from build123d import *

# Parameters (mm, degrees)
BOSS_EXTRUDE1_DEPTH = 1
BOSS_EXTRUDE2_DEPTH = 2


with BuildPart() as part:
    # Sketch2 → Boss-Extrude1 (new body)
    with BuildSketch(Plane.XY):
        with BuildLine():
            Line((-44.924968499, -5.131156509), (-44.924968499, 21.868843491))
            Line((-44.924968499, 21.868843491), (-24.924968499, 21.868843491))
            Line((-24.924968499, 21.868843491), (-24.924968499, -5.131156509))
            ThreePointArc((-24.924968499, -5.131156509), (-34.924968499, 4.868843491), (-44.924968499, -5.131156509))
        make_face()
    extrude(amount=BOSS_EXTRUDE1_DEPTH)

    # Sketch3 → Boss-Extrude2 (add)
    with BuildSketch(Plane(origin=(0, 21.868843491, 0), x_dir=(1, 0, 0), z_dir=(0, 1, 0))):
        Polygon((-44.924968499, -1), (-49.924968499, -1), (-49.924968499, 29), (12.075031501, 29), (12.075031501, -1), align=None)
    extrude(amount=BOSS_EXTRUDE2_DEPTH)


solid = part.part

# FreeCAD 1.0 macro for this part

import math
import FreeCAD as App
import Part
import Sketcher

V = App.Vector
Q = App.Units.Quantity


def add_polygon(sketch, points):
    """Adds a closed chain of lines whose ends are joined by coincident constraints."""
    first, n = sketch.GeometryCount, len(points)
    for a, b in zip(points, points[1:] + points[:1]):
        sketch.addGeometry(Part.LineSegment(App.Vector(*a, 0), App.Vector(*b, 0)), False)
    for i in range(n):
        sketch.addConstraint(Sketcher.Constraint("Coincident", first + i, 2, first + (i + 1) % n, 1))

doc = App.newDocument("Part")
body = doc.addObject("PartDesign::Body", "Body")

sketch1 = doc.addObject("Sketcher::SketchObject", "Sketch")
body.addObject(sketch1)
sketch1.AttachmentSupport = (doc.XY_Plane, [""])
sketch1.MapMode = "FlatFace"
sketch1.addGeometry([
    Part.LineSegment(V(-44.924968, 21.868843, 0), V(-44.924968, -5.131157, 0)),
    Part.ArcOfCircle(Part.Circle(V(-34.924968, -5.131157, 0), V(0, 0, 1), 10), math.radians(0), math.radians(180)),
    Part.LineSegment(V(-24.924968, -5.131157, 0), V(-24.924968, 21.868843, 0)),
    Part.LineSegment(V(-24.924968, 21.868843, 0), V(-44.924968, 21.868843, 0)),
], False)
sketch1.addConstraint([
    Sketcher.Constraint("Tangent", 0, 2, 1, 2),
    Sketcher.Constraint("Tangent", 1, 1, 2, 1),
    Sketcher.Constraint("Coincident", 2, 2, 3, 1),
    Sketcher.Constraint("Coincident", 3, 2, 0, 1),
    Sketcher.Constraint("Vertical", 0),
    Sketcher.Constraint("Vertical", 2),
    Sketcher.Constraint("Horizontal", 3),
    Sketcher.Constraint("Radius", 1, Q("10 mm")),
    Sketcher.Constraint("DistanceY", 0, 2, 0, 1, Q("27 mm")),
    Sketcher.Constraint("DistanceX", 1, 3, -1, 1, Q("34.924968 mm")),
    Sketcher.Constraint("DistanceY", 1, 3, -1, 1, Q("5.131157 mm")),
])
pad1 = doc.addObject("PartDesign::Pad", "Pad")
body.addObject(pad1)
pad1.Profile = sketch1
pad1.Length = 1

sketch2 = doc.addObject("Sketcher::SketchObject", "Sketch001")
body.addObject(sketch2)
sketch2.AttachmentSupport = (doc.XZ_Plane, [""])
sketch2.MapMode = "FlatFace"
sketch2.AttachmentOffset = App.Placement(V(0, 0, -21.868843), App.Rotation())
add_polygon(sketch2, [(-49.924968, 1), (12.075032, 1), (12.075032, -29), (-49.924968, -29)])
sketch2.addConstraint([
    Sketcher.Constraint("Horizontal", 0),
    Sketcher.Constraint("Vertical", 1),
    Sketcher.Constraint("Horizontal", 2),
    Sketcher.Constraint("Vertical", 3),
    Sketcher.Constraint("DistanceX", 0, 1, 0, 2, Q("62 mm")),
    Sketcher.Constraint("DistanceY", 1, 2, 1, 1, Q("30 mm")),
    Sketcher.Constraint("DistanceY", -1, 1, 0, 2, Q("1 mm")),
    Sketcher.Constraint("DistanceX", -1, 1, 0, 2, Q("12.075032 mm")),
])
pad2 = doc.addObject("PartDesign::Pad", "Pad001")
body.addObject(pad2)
pad2.Profile = sketch2
pad2.Length = 2
pad2.Reversed = True

doc.recompute()
